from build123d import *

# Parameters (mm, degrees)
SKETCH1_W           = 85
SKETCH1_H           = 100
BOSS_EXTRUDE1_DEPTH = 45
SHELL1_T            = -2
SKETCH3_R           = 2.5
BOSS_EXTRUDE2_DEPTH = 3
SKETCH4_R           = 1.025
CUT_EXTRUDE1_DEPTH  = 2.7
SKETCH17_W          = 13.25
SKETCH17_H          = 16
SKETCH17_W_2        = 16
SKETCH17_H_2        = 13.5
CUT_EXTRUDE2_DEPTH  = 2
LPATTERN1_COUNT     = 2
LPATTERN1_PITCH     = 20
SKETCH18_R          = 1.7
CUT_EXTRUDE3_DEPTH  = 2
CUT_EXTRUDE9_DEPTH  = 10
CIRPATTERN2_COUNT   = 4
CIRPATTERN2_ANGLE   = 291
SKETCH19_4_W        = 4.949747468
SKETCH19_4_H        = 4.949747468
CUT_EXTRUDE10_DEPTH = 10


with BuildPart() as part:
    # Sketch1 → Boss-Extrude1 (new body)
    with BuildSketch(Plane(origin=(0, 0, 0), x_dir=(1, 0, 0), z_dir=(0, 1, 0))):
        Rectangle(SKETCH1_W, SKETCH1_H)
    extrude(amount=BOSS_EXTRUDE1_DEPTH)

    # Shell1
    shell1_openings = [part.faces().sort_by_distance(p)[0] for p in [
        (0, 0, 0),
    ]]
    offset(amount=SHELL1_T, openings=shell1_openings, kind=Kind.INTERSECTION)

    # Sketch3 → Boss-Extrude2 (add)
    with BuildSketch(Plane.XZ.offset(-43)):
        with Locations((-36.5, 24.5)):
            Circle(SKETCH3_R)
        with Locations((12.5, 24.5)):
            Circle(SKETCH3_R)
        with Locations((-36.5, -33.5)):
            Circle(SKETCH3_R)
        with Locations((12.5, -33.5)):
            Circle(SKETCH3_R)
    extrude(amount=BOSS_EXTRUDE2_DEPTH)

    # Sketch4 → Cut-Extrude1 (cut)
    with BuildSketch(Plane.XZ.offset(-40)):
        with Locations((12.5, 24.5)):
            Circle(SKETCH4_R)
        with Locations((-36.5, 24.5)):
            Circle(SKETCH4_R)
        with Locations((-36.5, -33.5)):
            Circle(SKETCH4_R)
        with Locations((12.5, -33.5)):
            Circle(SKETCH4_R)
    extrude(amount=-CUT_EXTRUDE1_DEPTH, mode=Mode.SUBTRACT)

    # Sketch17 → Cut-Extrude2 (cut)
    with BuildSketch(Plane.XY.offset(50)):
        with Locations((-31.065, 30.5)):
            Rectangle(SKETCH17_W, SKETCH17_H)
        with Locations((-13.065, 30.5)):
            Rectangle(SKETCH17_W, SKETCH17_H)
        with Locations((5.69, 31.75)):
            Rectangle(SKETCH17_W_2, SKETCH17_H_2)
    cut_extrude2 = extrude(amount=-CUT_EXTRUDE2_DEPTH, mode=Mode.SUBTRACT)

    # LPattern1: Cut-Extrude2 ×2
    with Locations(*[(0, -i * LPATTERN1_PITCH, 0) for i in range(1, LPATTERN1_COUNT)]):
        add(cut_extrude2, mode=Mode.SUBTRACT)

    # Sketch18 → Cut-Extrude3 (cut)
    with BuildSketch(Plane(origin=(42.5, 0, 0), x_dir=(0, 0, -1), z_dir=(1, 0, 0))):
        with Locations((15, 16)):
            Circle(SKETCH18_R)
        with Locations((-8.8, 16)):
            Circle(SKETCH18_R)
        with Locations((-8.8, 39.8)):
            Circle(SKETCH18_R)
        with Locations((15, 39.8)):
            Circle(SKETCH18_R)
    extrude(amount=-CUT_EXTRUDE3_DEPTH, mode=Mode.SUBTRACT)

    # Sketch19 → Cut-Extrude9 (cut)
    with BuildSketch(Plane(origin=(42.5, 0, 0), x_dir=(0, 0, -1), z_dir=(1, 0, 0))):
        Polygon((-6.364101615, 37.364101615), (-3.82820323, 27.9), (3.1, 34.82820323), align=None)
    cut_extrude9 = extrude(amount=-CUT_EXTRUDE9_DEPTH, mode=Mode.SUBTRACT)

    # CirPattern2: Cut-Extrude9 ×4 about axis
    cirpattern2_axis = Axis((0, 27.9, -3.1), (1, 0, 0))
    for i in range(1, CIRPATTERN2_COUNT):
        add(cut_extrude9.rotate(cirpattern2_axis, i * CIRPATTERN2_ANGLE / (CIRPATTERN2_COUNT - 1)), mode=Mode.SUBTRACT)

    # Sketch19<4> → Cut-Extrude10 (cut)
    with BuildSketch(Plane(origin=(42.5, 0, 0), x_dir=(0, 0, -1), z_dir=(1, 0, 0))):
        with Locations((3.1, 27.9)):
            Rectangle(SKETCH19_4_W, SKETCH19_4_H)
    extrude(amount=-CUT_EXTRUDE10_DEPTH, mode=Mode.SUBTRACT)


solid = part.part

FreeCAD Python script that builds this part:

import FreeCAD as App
import Part
import Sketcher

V = App.Vector
Q = App.Units.Quantity


def faces_at(feature, points):
    """Names of the faces that lie closest to the given points."""
    faces = feature.Shape.Faces
    near = lambda p: min(range(len(faces)), key=lambda i: faces[i].distToShape(Part.Vertex(*p))[0])
    return sorted({f"Face{near(p) + 1}" for p in points})

doc = App.newDocument("Part")
params = doc.addObject("Spreadsheet::Sheet", "Params")
for row, (alias, value) in enumerate([
    ("sketch1_width", "85 mm"),
    ("sketch1_height", "100 mm"),
    ("pad1_length", "45 mm"),
    ("thickness_wall", "2 mm"),
    ("sketch2_diameter", "5 mm"),
    ("pad2_length", "3 mm"),
    ("sketch3_diameter", "2.05 mm"),
    ("pocket1_length", "2.7 mm"),
    ("sketch4_width", "16 mm"),
    ("sketch4_height", "13.5 mm"),
    ("sketch4_width2", "13.25 mm"),
    ("pocket2_length", "2 mm"),
    ("linearpattern_pitch", "20 mm"),
    ("sketch5_diameter", "3.4 mm"),
    ("pocket3_length", "2 mm"),
    ("pocket4_length", "10 mm"),
    ("pocket5_length", "10 mm"),
], start=1):
    params.set(f"A{row}", alias)
    params.set(f"B{row}", "=" + value)
    params.setAlias(f"B{row}", alias)

body = doc.addObject("PartDesign::Body", "Body")

sketch1 = body.newObject("Sketcher::SketchObject", "Sketch")
sketch1.AttachmentSupport = (doc.getObject("XZ_Plane"), [""])
sketch1.MapMode = "FlatFace"
sketch1.addGeometry([
    Part.LineSegment(V(-42.5, -50, 0), V(-42.5, 50, 0)),
    Part.LineSegment(V(-42.5, 50, 0), V(42.5, 50, 0)),
    Part.LineSegment(V(42.5, 50, 0), V(42.5, -50, 0)),
    Part.LineSegment(V(42.5, -50, 0), V(-42.5, -50, 0)),
], False)
sketch1.addConstraint([
    Sketcher.Constraint("Coincident", 0, 2, 1, 1),
    Sketcher.Constraint("Coincident", 1, 2, 2, 1),
    Sketcher.Constraint("Coincident", 2, 2, 3, 1),
    Sketcher.Constraint("Coincident", 3, 2, 0, 1),
    Sketcher.Constraint("Vertical", 0),
    Sketcher.Constraint("Horizontal", 1),
    Sketcher.Constraint("Vertical", 2),
    Sketcher.Constraint("Horizontal", 3),
    Sketcher.Constraint("Symmetric", 0, 2, 2, 2, -1, 1),
    Sketcher.Constraint("DistanceX", 1, 1, 1, 2, 85.0),
    Sketcher.Constraint("DistanceY", 0, 1, 0, 2, 100.0),
])
sketch1.setExpression("Constraints[9]", "Params.sketch1_width")
sketch1.setExpression("Constraints[10]", "Params.sketch1_height")
pad1 = body.newObject("PartDesign::Pad", "Pad")
pad1.Profile = sketch1
pad1.setExpression("Length", "Params.pad1_length")
pad1.Reversed = True
doc.recompute()

thickness = body.newObject("PartDesign::Thickness", "Thickness")
thickness.Base = (pad1, faces_at(pad1, [(0, 0, 0)]))
thickness.setExpression("Value", "Params.thickness_wall")
thickness.Reversed = True
thickness.Join = "Intersection"

sketch2 = body.newObject("Sketcher::SketchObject", "Sketch001")
sketch2.AttachmentSupport = (doc.getObject("XZ_Plane"), [""])
sketch2.MapMode = "FlatFace"
sketch2.AttachmentOffset = App.Placement(V(0, 0, -43), App.Rotation())
sketch2.addGeometry([
    Part.Circle(V(-36.5, 24.5, 0), V(0, 0, 1), 2.5),
    Part.Circle(V(12.5, 24.5, 0), V(0, 0, 1), 2.5),
    Part.Circle(V(-36.5, -33.5, 0), V(0, 0, 1), 2.5),
    Part.Circle(V(12.5, -33.5, 0), V(0, 0, 1), 2.5),
], False)
sketch2.addConstraint([
    Sketcher.Constraint("Equal", 0, 1),
    Sketcher.Constraint("Equal", 1, 2),
    Sketcher.Constraint("Equal", 2, 3),
    Sketcher.Constraint("Horizontal", 0, 3, 1, 3),
    Sketcher.Constraint("Horizontal", 2, 3, 3, 3),
    Sketcher.Constraint("Vertical", 0, 3, 2, 3),
    Sketcher.Constraint("Vertical", 1, 3, 3, 3),
    Sketcher.Constraint("Diameter", 0, 5.0),
    Sketcher.Constraint("DistanceX", 0, 3, 1, 3, 49.0),
    Sketcher.Constraint("DistanceY", 2, 3, 0, 3, 58.0),
    Sketcher.Constraint("DistanceX", 0, 3, -1, 1, 36.5),
    Sketcher.Constraint("DistanceY", -1, 1, 0, 3, 24.5),
])
sketch2.setExpression("Constraints[7]", "Params.sketch2_diameter")
pad2 = body.newObject("PartDesign::Pad", "Pad001")
pad2.Profile = sketch2
pad2.setExpression("Length", "Params.pad2_length")

sketch3 = body.newObject("Sketcher::SketchObject", "Sketch002")
sketch3.AttachmentSupport = (doc.getObject("XZ_Plane"), [""])
sketch3.MapMode = "FlatFace"
sketch3.AttachmentOffset = App.Placement(V(0, 0, -40), App.Rotation())
sketch3.addGeometry([
    Part.Circle(V(12.5, 24.5, 0), V(0, 0, 1), 1.025),
    Part.Circle(V(-36.5, 24.5, 0), V(0, 0, 1), 1.025),
    Part.Circle(V(-36.5, -33.5, 0), V(0, 0, 1), 1.025),
    Part.Circle(V(12.5, -33.5, 0), V(0, 0, 1), 1.025),
], False)
sketch3.addConstraint([
    Sketcher.Constraint("Equal", 0, 1),
    Sketcher.Constraint("Equal", 1, 2),
    Sketcher.Constraint("Equal", 2, 3),
    Sketcher.Constraint("Horizontal", 0, 3, 1, 3),
    Sketcher.Constraint("Horizontal", 2, 3, 3, 3),
    Sketcher.Constraint("Vertical", 1, 3, 2, 3),
    Sketcher.Constraint("Vertical", 0, 3, 3, 3),
    Sketcher.Constraint("Diameter", 0, 2.05),
    Sketcher.Constraint("DistanceX", 1, 3, 0, 3, 49.0),
    Sketcher.Constraint("DistanceY", 2, 3, 1, 3, 58.0),
    Sketcher.Constraint("DistanceX", -1, 1, 0, 3, 12.5),
    Sketcher.Constraint("DistanceY", -1, 1, 0, 3, 24.5),
])
sketch3.setExpression("Constraints[7]", "Params.sketch3_diameter")
pocket1 = body.newObject("PartDesign::Pocket", "Pocket")
pocket1.Profile = sketch3
pocket1.setExpression("Length", "Params.pocket1_length")

sketch4 = body.newObject("Sketcher::SketchObject", "Sketch003")
sketch4.AttachmentSupport = (doc.getObject("XY_Plane"), [""])
sketch4.MapMode = "FlatFace"
sketch4.AttachmentOffset = App.Placement(V(0, 0, 50), App.Rotation())
sketch4.addGeometry([
    Part.LineSegment(V(-37.69, 38.5, 0), V(-37.69, 22.5, 0)),
    Part.LineSegment(V(-37.69, 22.5, 0), V(-24.44, 22.5, 0)),
    Part.LineSegment(V(-24.44, 22.5, 0), V(-24.44, 38.5, 0)),
    Part.LineSegment(V(-24.44, 38.5, 0), V(-37.69, 38.5, 0)),
    Part.LineSegment(V(-19.69, 38.5, 0), V(-19.69, 22.5, 0)),
    Part.LineSegment(V(-19.69, 22.5, 0), V(-6.44, 22.5, 0)),
    Part.LineSegment(V(-6.44, 22.5, 0), V(-6.44, 38.5, 0)),
    Part.LineSegment(V(-6.44, 38.5, 0), V(-19.69, 38.5, 0)),
    Part.LineSegment(V(-2.31, 38.5, 0), V(-2.31, 25, 0)),
    Part.LineSegment(V(-2.31, 25, 0), V(13.69, 25, 0)),
    Part.LineSegment(V(13.69, 25, 0), V(13.69, 38.5, 0)),
    Part.LineSegment(V(13.69, 38.5, 0), V(-2.31, 38.5, 0)),
], False)
sketch4.addConstraint([
    Sketcher.Constraint("Coincident", 0, 2, 1, 1),
    Sketcher.Constraint("Coincident", 1, 2, 2, 1),
    Sketcher.Constraint("Coincident", 2, 2, 3, 1),
    Sketcher.Constraint("Coincident", 3, 2, 0, 1),
    Sketcher.Constraint("Coincident", 4, 2, 5, 1),
    Sketcher.Constraint("Coincident", 5, 2, 6, 1),
    Sketcher.Constraint("Coincident", 6, 2, 7, 1),
    Sketcher.Constraint("Coincident", 7, 2, 4, 1),
    Sketcher.Constraint("Coincident", 8, 2, 9, 1),
    Sketcher.Constraint("Coincident", 9, 2, 10, 1),
    Sketcher.Constraint("Coincident", 10, 2, 11, 1),
    Sketcher.Constraint("Coincident", 11, 2, 8, 1),
    Sketcher.Constraint("Vertical", 0),
    Sketcher.Constraint("Horizontal", 1),
    Sketcher.Constraint("Vertical", 2),
    Sketcher.Constraint("Horizontal", 3),
    Sketcher.Constraint("Vertical", 4),
    Sketcher.Constraint("Horizontal", 5),
    Sketcher.Constraint("Vertical", 6),
    Sketcher.Constraint("Horizontal", 7),
    Sketcher.Constraint("Vertical", 8),
    Sketcher.Constraint("Horizontal", 9),
    Sketcher.Constraint("Vertical", 10),
    Sketcher.Constraint("Horizontal", 11),
    Sketcher.Constraint("Horizontal", 1, 2, 4, 2),
    Sketcher.Constraint("Horizontal", 3, 2, 6, 2),
    Sketcher.Constraint("Horizontal", 7, 2, 10, 2),
    Sketcher.Constraint("Equal", 3, 5),
    Sketcher.Constraint("Equal", 11, 0),
    Sketcher.Constraint("DistanceX", 9, 1, 9, 2, 16.0),
    Sketcher.Constraint("DistanceY", 8, 2, 8, 1, 13.5),
    Sketcher.Constraint("DistanceY", -1, 1, 8, 2, 25.0),
    Sketcher.Constraint("DistanceX", 0, 2, 4, 2, 18.0),
    Sketcher.Constraint("DistanceX", 1, 1, 1, 2, 13.25),
    Sketcher.Constraint("DistanceX", 0, 2, -1, 1, 37.69),
    Sketcher.Constraint("DistanceX", 8, 2, -1, 1, 2.31),
])
sketch4.setExpression("Constraints[29]", "Params.sketch4_width")
sketch4.setExpression("Constraints[30]", "Params.sketch4_height")
sketch4.setExpression("Constraints[33]", "Params.sketch4_width2")
pocket2 = body.newObject("PartDesign::Pocket", "Pocket001")
pocket2.Profile = sketch4
pocket2.setExpression("Length", "Params.pocket2_length")
doc.recompute()

linearpattern = body.newObject("PartDesign::LinearPattern", "LinearPattern")
linearpattern.Originals = [pocket2]
linearpattern.Direction = (doc.getObject("Y_Axis"), [""])
linearpattern.Mode = "offset"
linearpattern.setExpression("Offset", "Params.linearpattern_pitch")
linearpattern.Occurrences = 2
linearpattern.Reversed = True
body.Tip = linearpattern

sketch5 = body.newObject("Sketcher::SketchObject", "Sketch004")
sketch5.AttachmentSupport = (doc.getObject("YZ_Plane"), [""])
sketch5.MapMode = "FlatFace"
sketch5.AttachmentOffset = App.Placement(V(0, 0, 42.5), App.Rotation())
sketch5.addGeometry([
    Part.Circle(V(16, -15, 0), V(0, 0, 1), 1.7),
    Part.Circle(V(16, 8.8, 0), V(0, 0, 1), 1.7),
    Part.Circle(V(39.8, 8.8, 0), V(0, 0, 1), 1.7),
    Part.Circle(V(39.8, -15, 0), V(0, 0, 1), 1.7),
], False)
sketch5.addConstraint([
    Sketcher.Constraint("Equal", 0, 1),
    Sketcher.Constraint("Equal", 1, 2),
    Sketcher.Constraint("Equal", 2, 3),
    Sketcher.Constraint("Horizontal", 1, 3, 2, 3),
    Sketcher.Constraint("Horizontal", 0, 3, 3, 3),
    Sketcher.Constraint("Vertical", 0, 3, 1, 3),
    Sketcher.Constraint("Vertical", 2, 3, 3, 3),
    Sketcher.Constraint("Diameter", 0, 3.4),
    Sketcher.Constraint("DistanceX", -1, 1, 0, 3, 16.0),
    Sketcher.Constraint("DistanceY", 0, 3, -1, 1, 15.0),
    Sketcher.Constraint("DistanceY", -1, 1, 1, 3, 8.8),
    Sketcher.Constraint("DistanceX", -1, 1, 2, 3, 39.8),
])
sketch5.setExpression("Constraints[7]", "Params.sketch5_diameter")
pocket3 = body.newObject("PartDesign::Pocket", "Pocket002")
pocket3.Profile = sketch5
pocket3.setExpression("Length", "Params.pocket3_length")

sketch6 = body.newObject("Sketcher::SketchObject", "Sketch005")
sketch6.AttachmentSupport = (doc.getObject("YZ_Plane"), [""])
sketch6.MapMode = "FlatFace"
sketch6.AttachmentOffset = App.Placement(V(0, 0, 42.5), App.Rotation())
sketch6.addGeometry([
    Part.LineSegment(V(37.364102, 6.364102, 0), V(27.9, 3.828203, 0)),
    Part.LineSegment(V(27.9, 3.828203, 0), V(34.828203, -3.1, 0)),
    Part.LineSegment(V(34.828203, -3.1, 0), V(37.364102, 6.364102, 0)),
], False)
sketch6.addConstraint([
    Sketcher.Constraint("Coincident", 0, 2, 1, 1),
    Sketcher.Constraint("Coincident", 1, 2, 2, 1),
    Sketcher.Constraint("Coincident", 2, 2, 0, 1),
    Sketcher.Constraint("Equal", 0, 1),
    Sketcher.Constraint("Equal", 1, 2),
    Sketcher.Constraint("Angle", 0, Q("-165 deg")),
    Sketcher.Constraint("DistanceX", -1, 1, 0, 2, 27.9),
    Sketcher.Constraint("DistanceY", 1, 2, -1, 1, 3.1),
    Sketcher.Constraint("DistanceX", -1, 1, 2, 2, 37.364102),
])
pocket4 = body.newObject("PartDesign::Pocket", "Pocket003")
pocket4.Profile = sketch6
pocket4.setExpression("Length", "Params.pocket4_length")
doc.recompute()

datumline = body.newObject("PartDesign::Line", "DatumLine")
datumline.Placement = App.Placement(V(0, 27.9, -3.1), App.Rotation(V(0, 0, 1), V(1, 0, 0)))
polarpattern = body.newObject("PartDesign::PolarPattern", "PolarPattern")
polarpattern.Originals = [pocket4]
polarpattern.Axis = (datumline, [""])
polarpattern.Angle = 291
polarpattern.Occurrences = 4
body.Tip = polarpattern

sketch7 = body.newObject("Sketcher::SketchObject", "Sketch006")
sketch7.AttachmentSupport = (doc.getObject("YZ_Plane"), [""])
sketch7.MapMode = "FlatFace"
sketch7.AttachmentOffset = App.Placement(V(0, 0, 42.5), App.Rotation())
sketch7.addGeometry([
    Part.LineSegment(V(30.374874, -0.625126, 0), V(25.425126, -0.625126, 0)),
    Part.LineSegment(V(25.425126, -0.625126, 0), V(25.425126, -5.574874, 0)),
    Part.LineSegment(V(25.425126, -5.574874, 0), V(30.374874, -5.574874, 0)),
    Part.LineSegment(V(30.374874, -5.574874, 0), V(30.374874, -0.625126, 0)),
], False)
sketch7.addConstraint([
    Sketcher.Constraint("Coincident", 0, 2, 1, 1),
    Sketcher.Constraint("Coincident", 1, 2, 2, 1),
    Sketcher.Constraint("Coincident", 2, 2, 3, 1),
    Sketcher.Constraint("Coincident", 3, 2, 0, 1),
    Sketcher.Constraint("Horizontal", 0),
    Sketcher.Constraint("Vertical", 1),
    Sketcher.Constraint("Horizontal", 2),
    Sketcher.Constraint("Vertical", 3),
    Sketcher.Constraint("Equal", 2, 1),
    Sketcher.Constraint("DistanceX", 0, 2, 0, 1, 4.949747),
    Sketcher.Constraint("DistanceX", -1, 1, 0, 2, 25.425126),
    Sketcher.Constraint("DistanceY", 0, 2, -1, 1, 0.625126),
])
pocket5 = body.newObject("PartDesign::Pocket", "Pocket004")
pocket5.Profile = sketch7
pocket5.setExpression("Length", "Params.pocket5_length")

doc.recompute()
